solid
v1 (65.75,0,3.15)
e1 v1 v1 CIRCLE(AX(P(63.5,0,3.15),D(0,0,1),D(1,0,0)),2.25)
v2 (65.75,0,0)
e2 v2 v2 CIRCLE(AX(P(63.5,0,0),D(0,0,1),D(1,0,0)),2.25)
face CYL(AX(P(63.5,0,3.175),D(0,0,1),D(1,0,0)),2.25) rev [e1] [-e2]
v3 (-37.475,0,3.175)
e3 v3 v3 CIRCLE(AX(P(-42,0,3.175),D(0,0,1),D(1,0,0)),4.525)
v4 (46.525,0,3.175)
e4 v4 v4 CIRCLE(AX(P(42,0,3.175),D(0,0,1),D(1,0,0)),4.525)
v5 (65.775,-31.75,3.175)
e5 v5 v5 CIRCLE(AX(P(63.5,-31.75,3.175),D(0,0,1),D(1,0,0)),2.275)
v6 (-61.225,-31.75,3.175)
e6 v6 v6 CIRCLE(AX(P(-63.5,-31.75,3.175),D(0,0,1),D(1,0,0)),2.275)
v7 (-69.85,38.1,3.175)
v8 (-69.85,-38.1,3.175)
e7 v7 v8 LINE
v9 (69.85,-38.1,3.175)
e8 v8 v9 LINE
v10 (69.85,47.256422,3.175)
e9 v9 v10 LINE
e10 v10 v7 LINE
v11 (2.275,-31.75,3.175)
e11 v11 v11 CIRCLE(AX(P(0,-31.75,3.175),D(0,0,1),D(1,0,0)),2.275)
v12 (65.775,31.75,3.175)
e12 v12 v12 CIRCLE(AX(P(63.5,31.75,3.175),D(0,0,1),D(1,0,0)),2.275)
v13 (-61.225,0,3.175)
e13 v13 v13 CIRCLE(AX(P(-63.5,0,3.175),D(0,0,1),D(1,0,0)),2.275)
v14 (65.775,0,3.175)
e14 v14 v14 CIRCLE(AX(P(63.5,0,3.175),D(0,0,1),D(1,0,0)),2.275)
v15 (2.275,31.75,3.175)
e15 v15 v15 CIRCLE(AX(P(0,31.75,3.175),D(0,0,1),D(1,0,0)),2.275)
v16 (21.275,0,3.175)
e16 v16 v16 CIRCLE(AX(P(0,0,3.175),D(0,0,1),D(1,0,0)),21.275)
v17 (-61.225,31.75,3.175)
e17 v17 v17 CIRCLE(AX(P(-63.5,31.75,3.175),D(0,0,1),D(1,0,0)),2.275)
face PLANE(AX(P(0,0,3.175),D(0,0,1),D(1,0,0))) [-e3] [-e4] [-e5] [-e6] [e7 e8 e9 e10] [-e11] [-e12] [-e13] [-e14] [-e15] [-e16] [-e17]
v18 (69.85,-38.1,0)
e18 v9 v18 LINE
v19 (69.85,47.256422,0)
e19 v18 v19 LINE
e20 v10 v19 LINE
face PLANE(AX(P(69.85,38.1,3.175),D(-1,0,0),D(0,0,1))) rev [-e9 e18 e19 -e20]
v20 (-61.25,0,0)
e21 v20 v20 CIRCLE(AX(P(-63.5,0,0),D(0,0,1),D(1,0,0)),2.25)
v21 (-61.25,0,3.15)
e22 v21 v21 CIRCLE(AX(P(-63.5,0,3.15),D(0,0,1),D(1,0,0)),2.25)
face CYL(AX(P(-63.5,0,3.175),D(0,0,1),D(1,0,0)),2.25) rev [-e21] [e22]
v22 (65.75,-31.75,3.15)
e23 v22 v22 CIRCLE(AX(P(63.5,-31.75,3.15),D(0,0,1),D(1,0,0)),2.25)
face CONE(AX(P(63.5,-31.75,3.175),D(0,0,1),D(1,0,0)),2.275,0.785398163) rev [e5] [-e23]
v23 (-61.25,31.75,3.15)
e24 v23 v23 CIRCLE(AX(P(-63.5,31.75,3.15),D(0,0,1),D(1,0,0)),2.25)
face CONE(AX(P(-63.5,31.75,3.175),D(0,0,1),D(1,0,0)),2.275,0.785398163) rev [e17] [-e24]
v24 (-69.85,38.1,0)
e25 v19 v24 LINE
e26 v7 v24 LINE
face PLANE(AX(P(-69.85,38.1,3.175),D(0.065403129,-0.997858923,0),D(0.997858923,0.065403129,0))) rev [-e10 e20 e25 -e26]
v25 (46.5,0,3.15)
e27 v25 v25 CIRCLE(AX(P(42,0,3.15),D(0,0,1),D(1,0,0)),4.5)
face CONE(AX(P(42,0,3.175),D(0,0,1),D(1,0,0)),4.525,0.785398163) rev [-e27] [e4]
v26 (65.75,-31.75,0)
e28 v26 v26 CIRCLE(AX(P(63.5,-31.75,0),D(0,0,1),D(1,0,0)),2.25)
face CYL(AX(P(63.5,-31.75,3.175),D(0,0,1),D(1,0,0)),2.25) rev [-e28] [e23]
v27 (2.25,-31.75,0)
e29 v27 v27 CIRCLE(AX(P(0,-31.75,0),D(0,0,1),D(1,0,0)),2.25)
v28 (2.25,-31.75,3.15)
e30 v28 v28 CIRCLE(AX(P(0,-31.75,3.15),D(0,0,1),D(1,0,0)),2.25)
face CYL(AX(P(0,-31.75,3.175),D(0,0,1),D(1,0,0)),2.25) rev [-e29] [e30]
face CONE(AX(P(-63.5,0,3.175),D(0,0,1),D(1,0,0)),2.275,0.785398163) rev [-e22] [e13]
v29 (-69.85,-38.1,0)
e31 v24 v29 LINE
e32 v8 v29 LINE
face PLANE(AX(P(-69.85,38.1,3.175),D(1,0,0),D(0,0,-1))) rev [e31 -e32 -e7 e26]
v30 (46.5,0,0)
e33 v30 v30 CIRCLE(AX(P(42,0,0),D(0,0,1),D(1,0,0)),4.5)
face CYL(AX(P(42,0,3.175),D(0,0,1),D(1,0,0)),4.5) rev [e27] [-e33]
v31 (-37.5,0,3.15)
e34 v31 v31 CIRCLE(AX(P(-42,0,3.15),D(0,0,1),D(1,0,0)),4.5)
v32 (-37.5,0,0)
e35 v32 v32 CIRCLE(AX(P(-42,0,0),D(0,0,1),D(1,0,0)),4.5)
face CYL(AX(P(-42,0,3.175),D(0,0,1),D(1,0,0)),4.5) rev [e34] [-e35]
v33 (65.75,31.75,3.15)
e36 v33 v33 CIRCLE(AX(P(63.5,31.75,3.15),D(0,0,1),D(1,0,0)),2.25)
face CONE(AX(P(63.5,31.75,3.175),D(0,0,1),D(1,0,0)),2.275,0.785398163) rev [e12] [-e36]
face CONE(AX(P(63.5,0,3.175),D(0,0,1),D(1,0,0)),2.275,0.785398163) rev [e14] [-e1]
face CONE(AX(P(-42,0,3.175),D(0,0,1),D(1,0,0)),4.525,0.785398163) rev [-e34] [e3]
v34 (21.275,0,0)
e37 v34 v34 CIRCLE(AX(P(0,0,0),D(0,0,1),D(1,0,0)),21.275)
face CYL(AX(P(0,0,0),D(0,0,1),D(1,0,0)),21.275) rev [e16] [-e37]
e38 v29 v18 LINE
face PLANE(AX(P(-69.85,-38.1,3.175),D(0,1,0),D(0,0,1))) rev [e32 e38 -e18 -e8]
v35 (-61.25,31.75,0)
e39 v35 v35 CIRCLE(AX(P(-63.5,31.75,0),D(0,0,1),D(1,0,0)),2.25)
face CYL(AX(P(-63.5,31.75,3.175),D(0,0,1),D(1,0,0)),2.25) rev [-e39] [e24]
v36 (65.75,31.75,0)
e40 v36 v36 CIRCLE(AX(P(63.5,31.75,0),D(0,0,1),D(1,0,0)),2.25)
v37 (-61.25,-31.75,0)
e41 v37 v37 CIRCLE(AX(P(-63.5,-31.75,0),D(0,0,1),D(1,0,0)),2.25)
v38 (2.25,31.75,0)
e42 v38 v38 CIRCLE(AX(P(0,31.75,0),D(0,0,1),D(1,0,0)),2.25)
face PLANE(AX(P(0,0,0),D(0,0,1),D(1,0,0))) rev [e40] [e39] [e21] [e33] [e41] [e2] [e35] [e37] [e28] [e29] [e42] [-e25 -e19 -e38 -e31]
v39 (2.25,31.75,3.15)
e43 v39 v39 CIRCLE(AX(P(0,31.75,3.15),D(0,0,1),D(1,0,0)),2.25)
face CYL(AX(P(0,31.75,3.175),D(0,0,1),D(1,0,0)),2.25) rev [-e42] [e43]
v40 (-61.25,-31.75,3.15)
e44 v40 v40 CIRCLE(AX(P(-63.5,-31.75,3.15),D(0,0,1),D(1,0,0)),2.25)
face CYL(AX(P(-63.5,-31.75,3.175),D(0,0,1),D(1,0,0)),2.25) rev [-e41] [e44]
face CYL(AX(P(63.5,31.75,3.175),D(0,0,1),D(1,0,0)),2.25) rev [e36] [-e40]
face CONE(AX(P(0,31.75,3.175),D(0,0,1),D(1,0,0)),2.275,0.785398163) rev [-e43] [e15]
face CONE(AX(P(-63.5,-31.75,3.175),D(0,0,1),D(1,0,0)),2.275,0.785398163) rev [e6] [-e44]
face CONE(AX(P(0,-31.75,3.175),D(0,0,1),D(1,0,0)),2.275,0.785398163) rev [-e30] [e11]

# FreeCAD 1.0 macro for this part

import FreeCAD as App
import Part
import Sketcher
from FreeCAD import Vector
Q = App.Units.Quantity


def add_polygon(sketch, points):
    """Adds a closed chain of lines whose ends are joined by coincident constraints."""
    first, n = sketch.GeometryCount, len(points)
    for a, b in zip(points, points[1:] + points[:1]):
        sketch.addGeometry(Part.LineSegment(App.Vector(*a, 0), App.Vector(*b, 0)), False)
    for i in range(n):
        sketch.addConstraint(Sketcher.Constraint("Coincident", first + i, 2, first + (i + 1) % n, 1))

doc = App.newDocument("Part")
body = doc.addObject("PartDesign::Body", "Body")

# Sketch on XY plane
sketch1 = body.newObject("Sketcher::SketchObject", "Sketch")
sketch1.AttachmentSupport = (doc.getObject("XY_Plane"), [""])
sketch1.MapMode = "FlatFace"
add_polygon(sketch1, [(69.85, 47.256422), (-69.85, 38.1), (-69.85, -38.1), (69.85, -38.1)])  # lines 0-3
sketch1.addConstraint([
    Sketcher.Constraint("Vertical", 1),
    Sketcher.Constraint("Horizontal", 2),
    Sketcher.Constraint("Vertical", 3),
    Sketcher.Constraint("Symmetric", 0, 2, 2, 2, -1, 1),
    Sketcher.Constraint("DistanceY", 1, 2, 1, 1, Q("3 in")),
    Sketcher.Constraint("DistanceX", 2, 1, 2, 2, Q("5.5 in")),
    Sketcher.Constraint("Angle", 0, Q("-176.25 deg")),
])
pad1 = body.newObject("PartDesign::Pad", "Pad")
pad1.Profile = sketch1
pad1.Length = Q("0.125 in")

# Sketch on XY plane
sketch2 = body.newObject("Sketcher::SketchObject", "Sketch001")
sketch2.AttachmentSupport = (doc.getObject("XY_Plane"), [""])
sketch2.MapMode = "FlatFace"
sketch2.AttachmentOffset = App.Placement(Vector(0, 0, 0.125 * 25.4), App.Rotation())
sketch2.addGeometry([
    Part.Circle(Vector(-63.5, -31.75, 0), Vector(0, 0, 1), 2.25),  # 0
    Part.Circle(Vector(0, -31.75, 0), Vector(0, 0, 1), 2.25),  # 1
    Part.Circle(Vector(63.5, -31.75, 0), Vector(0, 0, 1), 2.25),  # 2
    Part.Circle(Vector(63.5, 31.75, 0), Vector(0, 0, 1), 2.25),  # 3
    Part.Circle(Vector(63.5, 0, 0), Vector(0, 0, 1), 2.25),  # 4
    Part.Circle(Vector(0, 31.75, 0), Vector(0, 0, 1), 2.25),  # 5
    Part.Circle(Vector(-63.5, 31.75, 0), Vector(0, 0, 1), 2.25),  # 6
    Part.Circle(Vector(-63.5, 0, 0), Vector(0, 0, 1), 2.25),  # 7
], False)
sketch2.addConstraint([
    Sketcher.Constraint("Equal", 0, 1),
    Sketcher.Constraint("Equal", 1, 2),
    Sketcher.Constraint("Equal", 2, 3),
    Sketcher.Constraint("Equal", 3, 4),
    Sketcher.Constraint("Equal", 4, 5),
    Sketcher.Constraint("Equal", 5, 6),
    Sketcher.Constraint("Equal", 6, 7),
    Sketcher.Constraint("Symmetric", 0, 3, 3, 3, -1, 1),
    Sketcher.Constraint("Symmetric", 1, 3, 5, 3, -1, 1),
    Sketcher.Constraint("Symmetric", 2, 3, 6, 3, -1, 1),
    Sketcher.Constraint("Symmetric", 4, 3, 7, 3, -1, 1),
    Sketcher.Constraint("Symmetric", 0, 3, 2, 3, -2),
    Sketcher.Constraint("PointOnObject", 1, 3, -2),
    Sketcher.Constraint("PointOnObject", 4, 3, -1),
    Sketcher.Constraint("Horizontal", 0, 3, 1, 3),
    Sketcher.Constraint("Vertical", 3, 3, 4, 3),
    Sketcher.Constraint("DistanceX", 0, 3, 2, 3, Q("5 in")),
    Sketcher.Constraint("DistanceY", 2, 3, 3, 3, Q("2.5 in")),
    Sketcher.Constraint("Diameter", 0, Q("4.5 mm")),
])
doc.recompute()
hole = body.newObject("PartDesign::Hole", "Hole")
hole.Profile = sketch2
hole.ThreadType = "None"
hole.Diameter = 4.5
hole.DepthType = "ThroughAll"
hole.HoleCutType = "Countersink"
hole.HoleCutDiameter = 4.55
hole.HoleCutCountersinkAngle = 90

# Sketch on YZ plane
sketch3 = body.newObject("Sketcher::SketchObject", "Sketch002")
sketch3.AttachmentSupport = (doc.getObject("YZ_Plane"), [""])
sketch3.MapMode = "FlatFace"
sketch3.AttachmentOffset = App.Placement(Vector(0, 0, -42), App.Rotation())
add_polygon(sketch3, [(0, 0), (0, 3.175), (-4.525, 3.175), (-4.5, 3.15), (-4.5, 0)])  # lines 0-4
sketch3.addConstraint([
    Sketcher.Constraint("Vertical", 0),
    Sketcher.Constraint("Horizontal", 1),
    Sketcher.Constraint("Vertical", 3),
    Sketcher.Constraint("Horizontal", 4),
    Sketcher.Constraint("Coincident", 4, 2, -1, 1),
    Sketcher.Constraint("Angle", 2, Q("-45 deg")),
    Sketcher.Constraint("DistanceY", 0, 1, 0, 2, Q("0.125 in")),
    Sketcher.Constraint("DistanceX", 1, 2, 1, 1, Q("4.525 mm")),
    Sketcher.Constraint("DistanceX", 4, 1, 4, 2, Q("4.5 mm")),
])
groove = body.newObject("PartDesign::Groove", "Groove")
groove.Profile = sketch3
groove.ReferenceAxis = (sketch3, ["V_Axis"])
groove.Angle = 360
doc.recompute()

linearpattern = body.newObject("PartDesign::LinearPattern", "LinearPattern")
linearpattern.Originals = [groove]
linearpattern.Direction = (doc.getObject("X_Axis"), [""])
linearpattern.Mode = "offset"
linearpattern.Offset = 84
linearpattern.Occurrences = 2
body.Tip = linearpattern

# Sketch on XY plane
sketch4 = body.newObject("Sketcher::SketchObject", "Sketch003")
sketch4.AttachmentSupport = (doc.getObject("XY_Plane"), [""])
sketch4.MapMode = "FlatFace"
sketch4.AttachmentOffset = App.Placement(Vector(0, 0, 0.125 * 25.4), App.Rotation())
sketch4.addGeometry(Part.Circle(Vector(0, 0, 0), Vector(0, 0, 1), 21.275), False)
sketch4.addConstraint([
    Sketcher.Constraint("Coincident", 0, 3, -1, 1),
    Sketcher.Constraint("Diameter", 0, Q("42.55 mm")),
])
pocket1 = body.newObject("PartDesign::Pocket", "Pocket")
pocket1.Profile = sketch4
pocket1.Type = "ThroughAll"

doc.recompute()
